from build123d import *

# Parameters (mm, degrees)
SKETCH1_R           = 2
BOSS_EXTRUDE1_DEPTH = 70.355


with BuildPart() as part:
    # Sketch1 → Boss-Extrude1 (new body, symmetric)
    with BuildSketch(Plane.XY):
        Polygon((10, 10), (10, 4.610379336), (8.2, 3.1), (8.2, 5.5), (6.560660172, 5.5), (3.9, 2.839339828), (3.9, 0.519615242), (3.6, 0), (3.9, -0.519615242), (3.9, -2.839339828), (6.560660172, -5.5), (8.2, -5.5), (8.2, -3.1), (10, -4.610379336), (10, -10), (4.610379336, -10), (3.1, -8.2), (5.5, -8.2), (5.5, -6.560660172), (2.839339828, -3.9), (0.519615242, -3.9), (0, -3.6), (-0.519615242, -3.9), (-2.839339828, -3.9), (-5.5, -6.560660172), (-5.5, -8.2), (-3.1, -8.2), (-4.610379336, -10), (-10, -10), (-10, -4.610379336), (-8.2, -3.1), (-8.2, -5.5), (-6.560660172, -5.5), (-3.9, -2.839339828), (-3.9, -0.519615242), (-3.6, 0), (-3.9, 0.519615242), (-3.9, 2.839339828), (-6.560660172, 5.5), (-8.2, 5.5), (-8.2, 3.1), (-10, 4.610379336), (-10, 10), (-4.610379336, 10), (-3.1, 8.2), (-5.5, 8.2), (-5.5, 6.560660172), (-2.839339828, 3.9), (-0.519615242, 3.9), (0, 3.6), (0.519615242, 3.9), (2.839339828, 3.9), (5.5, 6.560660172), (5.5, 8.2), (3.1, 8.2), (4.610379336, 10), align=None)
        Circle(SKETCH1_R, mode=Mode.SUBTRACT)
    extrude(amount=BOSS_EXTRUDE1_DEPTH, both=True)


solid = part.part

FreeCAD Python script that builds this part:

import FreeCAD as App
import Part
import Sketcher
from FreeCAD import Vector
Q = App.Units.Quantity


def add_polygon(sketch, points):
    """Adds a closed chain of lines whose ends are joined by coincident constraints."""
    first, n = sketch.GeometryCount, len(points)
    for a, b in zip(points, points[1:] + points[:1]):
        sketch.addGeometry(Part.LineSegment(App.Vector(*a, 0), App.Vector(*b, 0)), False)
    for i in range(n):
        sketch.addConstraint(Sketcher.Constraint("Coincident", first + i, 2, first + (i + 1) % n, 1))

doc = App.newDocument("Part")
params = doc.addObject("Spreadsheet::Sheet", "Params")
for row, (alias, value) in enumerate([
    ("sketch1_diameter", "4 mm"),
    ("sketch1_width", "2.4 mm"),
    ("sketch1_length", "0.6 mm"),
    ("pad1_length", "140.71 mm"),
], start=1):
    params.set(f"A{row}", alias)
    params.set(f"B{row}", "=" + value)
    params.setAlias(f"B{row}", alias)

body = doc.addObject("PartDesign::Body", "Body")

sketch1 = doc.addObject("Sketcher::SketchObject", "Sketch")
body.addObject(sketch1)
sketch1.AttachmentSupport = (doc.XY_Plane, [""])
sketch1.MapMode = "FlatFace"
add_polygon(sketch1, [(10, 4.6), (10, 10), (4.6, 10), (3.1, 8.2), (5.5, 8.2), (5.5, 6.6), (2.8, 3.9), (0.5, 3.9), (0, 3.6), (-0.5, 3.9), (-2.8, 3.9), (-5.5, 6.6), (-5.5, 8.2), (-3.1, 8.2), (-4.6, 10), (-10, 10), (-10, 4.6), (-8.2, 3.1), (-8.2, 5.5), (-6.6, 5.5), (-3.9, 2.8), (-3.9, 0.5), (-3.6, 0), (-3.9, -0.5), (-3.9, -2.8), (-6.6, -5.5), (-8.2, -5.5), (-8.2, -3.1), (-10, -4.6), (-10, -10), (-4.6, -10), (-3.1, -8.2), (-5.5, -8.2), (-5.5, -6.6), (-2.8, -3.9), (-0.5, -3.9), (0, -3.6), (0.5, -3.9), (2.8, -3.9), (5.5, -6.6), (5.5, -8.2), (3.1, -8.2), (4.6, -10), (10, -10), (10, -4.6), (8.2, -3.1), (8.2, -5.5), (6.6, -5.5), (3.9, -2.8), (3.9, -0.5), (3.6, 0), (3.9, 0.5), (3.9, 2.8), (6.6, 5.5), (8.2, 5.5), (8.2, 3.1)])
sketch1.addGeometry(Part.Circle(Vector(0, 0, 0), Vector(0, 0, 1), 2), False)
sketch1.addConstraint(Sketcher.Constraint("Vertical", 0))
sketch1.addConstraint(Sketcher.Constraint("Horizontal", 1))
sketch1.addConstraint(Sketcher.Constraint("Horizontal", 3))
sketch1.addConstraint(Sketcher.Constraint("Vertical", 4))
sketch1.addConstraint(Sketcher.Constraint("Horizontal", 6))
sketch1.addConstraint(Sketcher.Constraint("Horizontal", 9))
sketch1.addConstraint(Sketcher.Constraint("Vertical", 11))
sketch1.addConstraint(Sketcher.Constraint("Horizontal", 12))
sketch1.addConstraint(Sketcher.Constraint("Horizontal", 14))
sketch1.addConstraint(Sketcher.Constraint("Vertical", 15))
sketch1.addConstraint(Sketcher.Constraint("Vertical", 17))
sketch1.addConstraint(Sketcher.Constraint("Horizontal", 18))
sketch1.addConstraint(Sketcher.Constraint("Vertical", 20))
sketch1.addConstraint(Sketcher.Constraint("Vertical", 23))
sketch1.addConstraint(Sketcher.Constraint("Horizontal", 25))
sketch1.addConstraint(Sketcher.Constraint("Vertical", 26))
sketch1.addConstraint(Sketcher.Constraint("Vertical", 28))
sketch1.addConstraint(Sketcher.Constraint("Horizontal", 29))
sketch1.addConstraint(Sketcher.Constraint("Horizontal", 31))
sketch1.addConstraint(Sketcher.Constraint("Vertical", 32))
sketch1.addConstraint(Sketcher.Constraint("Horizontal", 34))
sketch1.addConstraint(Sketcher.Constraint("Horizontal", 37))
sketch1.addConstraint(Sketcher.Constraint("Vertical", 39))
sketch1.addConstraint(Sketcher.Constraint("Horizontal", 40))
sketch1.addConstraint(Sketcher.Constraint("Horizontal", 42))
sketch1.addConstraint(Sketcher.Constraint("Vertical", 43))
sketch1.addConstraint(Sketcher.Constraint("Vertical", 45))
sketch1.addConstraint(Sketcher.Constraint("Horizontal", 46))
sketch1.addConstraint(Sketcher.Constraint("Vertical", 48))
sketch1.addConstraint(Sketcher.Constraint("Vertical", 51))
sketch1.addConstraint(Sketcher.Constraint("Horizontal", 53))
sketch1.addConstraint(Sketcher.Constraint("Vertical", 54))
sketch1.addConstraint(Sketcher.Constraint("Coincident", 56, 3, -1, 1))
sketch1.addConstraint(Sketcher.Constraint("Symmetric", 0, 2, 28, 2, -1, 1))
sketch1.addConstraint(Sketcher.Constraint("Symmetric", 2, 2, 30, 2, -1, 1))
sketch1.addConstraint(Sketcher.Constraint("Symmetric", 4, 2, 32, 2, -1, 1))
sketch1.addConstraint(Sketcher.Constraint("Symmetric", 5, 2, 33, 2, -1, 1))
sketch1.addConstraint(Sketcher.Constraint("Symmetric", 7, 2, 35, 2, -1, 1))
sketch1.addConstraint(Sketcher.Constraint("Symmetric", 8, 2, 36, 2, -1, 1))
sketch1.addConstraint(Sketcher.Constraint("Symmetric", 10, 2, 38, 2, -1, 1))
sketch1.addConstraint(Sketcher.Constraint("Symmetric", 12, 2, 40, 2, -1, 1))
sketch1.addConstraint(Sketcher.Constraint("Symmetric", 13, 2, 41, 2, -1, 1))
sketch1.addConstraint(Sketcher.Constraint("Symmetric", 15, 2, 43, 2, -1, 1))
sketch1.addConstraint(Sketcher.Constraint("Symmetric", 16, 2, 44, 2, -1, 1))
sketch1.addConstraint(Sketcher.Constraint("Symmetric", 18, 2, 46, 2, -1, 1))
sketch1.addConstraint(Sketcher.Constraint("Symmetric", 19, 2, 47, 2, -1, 1))
sketch1.addConstraint(Sketcher.Constraint("Symmetric", 21, 2, 49, 2, -1, 1))
sketch1.addConstraint(Sketcher.Constraint("Symmetric", 22, 2, 50, 2, -1, 1))
sketch1.addConstraint(Sketcher.Constraint("Symmetric", 24, 2, 52, 2, -1, 1))
sketch1.addConstraint(Sketcher.Constraint("Symmetric", 26, 2, 54, 2, -1, 1))
sketch1.addConstraint(Sketcher.Constraint("Symmetric", 6, 2, 8, 2, -2))
sketch1.addConstraint(Sketcher.Constraint("Symmetric", 4, 2, 10, 2, -2))
sketch1.addConstraint(Sketcher.Constraint("Symmetric", 2, 2, 12, 2, -2))
sketch1.addConstraint(Sketcher.Constraint("Symmetric", 1, 2, 13, 2, -2))
sketch1.addConstraint(Sketcher.Constraint("Symmetric", 27, 2, 43, 2, -2))
sketch1.addConstraint(Sketcher.Constraint("Symmetric", 26, 2, 44, 2, -2))
sketch1.addConstraint(Sketcher.Constraint("Symmetric", 24, 2, 46, 2, -2))
sketch1.addConstraint(Sketcher.Constraint("Symmetric", 23, 2, 47, 2, -2))
sketch1.addConstraint(Sketcher.Constraint("PointOnObject", 7, 2, -2))
sketch1.addConstraint(Sketcher.Constraint("PointOnObject", 21, 2, -1))
sketch1.addConstraint(Sketcher.Constraint("Perpendicular", 5, 10))
sketch1.addConstraint(Sketcher.Constraint("Perpendicular", 2, 16))
sketch1.addConstraint(Sketcher.Constraint("Parallel", 10, 19))
sketch1.addConstraint(Sketcher.Constraint("Perpendicular", 7, 21))
sketch1.addConstraint(Sketcher.Constraint("Perpendicular", 8, 22))
sketch1.addConstraint(Sketcher.Constraint("Perpendicular", 19, 24))
sketch1.addConstraint(Sketcher.Constraint("Perpendicular", 16, 30))
sketch1.addConstraint(Sketcher.Constraint("Perpendicular", 21, 35))
sketch1.addConstraint(Sketcher.Constraint("Perpendicular", 33, 38))
sketch1.addConstraint(Sketcher.Constraint("Perpendicular", 35, 49))
sketch1.addConstraint(Sketcher.Constraint("Perpendicular", 47, 52))
sketch1.addConstraint(Sketcher.Constraint("Perpendicular", 41, 55))
sketch1.addConstraint(Sketcher.Constraint("Equal", 42, 0))
sketch1.addConstraint(Sketcher.Constraint("Equal", 53, 4))
sketch1.addConstraint(Sketcher.Constraint("Equal", 40, 17))
sketch1.addConstraint(Sketcher.Constraint("Equal", 37, 20))
sketch1.addConstraint(Sketcher.Constraint("Equal", 13, 16))
sketch1.addConstraint(Sketcher.Constraint("Equal", 10, 19))
sketch1.addConstraint(Sketcher.Constraint("Equal", 8, 21))
sketch1.addConstraint(Sketcher.Constraint("Diameter", 56, Q("4 mm")))
sketch1.addConstraint(Sketcher.Constraint("Angle", 2, Q("-130 deg")))
sketch1.addConstraint(Sketcher.Constraint("Angle", 7, Q("-150 deg")))
sketch1.addConstraint(Sketcher.Constraint("DistanceX", 3, 1, 3, 2, Q("2.4 mm")))
sketch1.addConstraint(Sketcher.Constraint("DistanceX", -1, 1, 0, 2, Q("10 mm")))
sketch1.addConstraint(Sketcher.Constraint("Distance", 7, Q("0.6 mm")))
sketch1.addConstraint(Sketcher.Constraint("DistanceX", -1, 1, 2, 2, Q("3.1 mm")))
sketch1.addConstraint(Sketcher.Constraint("DistanceY", -1, 1, 2, 2, Q("8.2 mm")))
sketch1.addConstraint(Sketcher.Constraint("DistanceY", -1, 1, 5, 2, Q("3.9 mm")))
sketch1.addConstraint(Sketcher.Constraint("DistanceX", 18, 1, 18, 2, Q("1.63934 mm")))
sketch1.setExpression("Constraints[135]", "Params.sketch1_diameter")
sketch1.setExpression("Constraints[138]", "Params.sketch1_width")
sketch1.setExpression("Constraints[140]", "Params.sketch1_length")
pad1 = doc.addObject("PartDesign::Pad", "Pad")
body.addObject(pad1)
pad1.Profile = sketch1
pad1.setExpression("Length", "Params.pad1_length")
pad1.Midplane = True

doc.recompute()
